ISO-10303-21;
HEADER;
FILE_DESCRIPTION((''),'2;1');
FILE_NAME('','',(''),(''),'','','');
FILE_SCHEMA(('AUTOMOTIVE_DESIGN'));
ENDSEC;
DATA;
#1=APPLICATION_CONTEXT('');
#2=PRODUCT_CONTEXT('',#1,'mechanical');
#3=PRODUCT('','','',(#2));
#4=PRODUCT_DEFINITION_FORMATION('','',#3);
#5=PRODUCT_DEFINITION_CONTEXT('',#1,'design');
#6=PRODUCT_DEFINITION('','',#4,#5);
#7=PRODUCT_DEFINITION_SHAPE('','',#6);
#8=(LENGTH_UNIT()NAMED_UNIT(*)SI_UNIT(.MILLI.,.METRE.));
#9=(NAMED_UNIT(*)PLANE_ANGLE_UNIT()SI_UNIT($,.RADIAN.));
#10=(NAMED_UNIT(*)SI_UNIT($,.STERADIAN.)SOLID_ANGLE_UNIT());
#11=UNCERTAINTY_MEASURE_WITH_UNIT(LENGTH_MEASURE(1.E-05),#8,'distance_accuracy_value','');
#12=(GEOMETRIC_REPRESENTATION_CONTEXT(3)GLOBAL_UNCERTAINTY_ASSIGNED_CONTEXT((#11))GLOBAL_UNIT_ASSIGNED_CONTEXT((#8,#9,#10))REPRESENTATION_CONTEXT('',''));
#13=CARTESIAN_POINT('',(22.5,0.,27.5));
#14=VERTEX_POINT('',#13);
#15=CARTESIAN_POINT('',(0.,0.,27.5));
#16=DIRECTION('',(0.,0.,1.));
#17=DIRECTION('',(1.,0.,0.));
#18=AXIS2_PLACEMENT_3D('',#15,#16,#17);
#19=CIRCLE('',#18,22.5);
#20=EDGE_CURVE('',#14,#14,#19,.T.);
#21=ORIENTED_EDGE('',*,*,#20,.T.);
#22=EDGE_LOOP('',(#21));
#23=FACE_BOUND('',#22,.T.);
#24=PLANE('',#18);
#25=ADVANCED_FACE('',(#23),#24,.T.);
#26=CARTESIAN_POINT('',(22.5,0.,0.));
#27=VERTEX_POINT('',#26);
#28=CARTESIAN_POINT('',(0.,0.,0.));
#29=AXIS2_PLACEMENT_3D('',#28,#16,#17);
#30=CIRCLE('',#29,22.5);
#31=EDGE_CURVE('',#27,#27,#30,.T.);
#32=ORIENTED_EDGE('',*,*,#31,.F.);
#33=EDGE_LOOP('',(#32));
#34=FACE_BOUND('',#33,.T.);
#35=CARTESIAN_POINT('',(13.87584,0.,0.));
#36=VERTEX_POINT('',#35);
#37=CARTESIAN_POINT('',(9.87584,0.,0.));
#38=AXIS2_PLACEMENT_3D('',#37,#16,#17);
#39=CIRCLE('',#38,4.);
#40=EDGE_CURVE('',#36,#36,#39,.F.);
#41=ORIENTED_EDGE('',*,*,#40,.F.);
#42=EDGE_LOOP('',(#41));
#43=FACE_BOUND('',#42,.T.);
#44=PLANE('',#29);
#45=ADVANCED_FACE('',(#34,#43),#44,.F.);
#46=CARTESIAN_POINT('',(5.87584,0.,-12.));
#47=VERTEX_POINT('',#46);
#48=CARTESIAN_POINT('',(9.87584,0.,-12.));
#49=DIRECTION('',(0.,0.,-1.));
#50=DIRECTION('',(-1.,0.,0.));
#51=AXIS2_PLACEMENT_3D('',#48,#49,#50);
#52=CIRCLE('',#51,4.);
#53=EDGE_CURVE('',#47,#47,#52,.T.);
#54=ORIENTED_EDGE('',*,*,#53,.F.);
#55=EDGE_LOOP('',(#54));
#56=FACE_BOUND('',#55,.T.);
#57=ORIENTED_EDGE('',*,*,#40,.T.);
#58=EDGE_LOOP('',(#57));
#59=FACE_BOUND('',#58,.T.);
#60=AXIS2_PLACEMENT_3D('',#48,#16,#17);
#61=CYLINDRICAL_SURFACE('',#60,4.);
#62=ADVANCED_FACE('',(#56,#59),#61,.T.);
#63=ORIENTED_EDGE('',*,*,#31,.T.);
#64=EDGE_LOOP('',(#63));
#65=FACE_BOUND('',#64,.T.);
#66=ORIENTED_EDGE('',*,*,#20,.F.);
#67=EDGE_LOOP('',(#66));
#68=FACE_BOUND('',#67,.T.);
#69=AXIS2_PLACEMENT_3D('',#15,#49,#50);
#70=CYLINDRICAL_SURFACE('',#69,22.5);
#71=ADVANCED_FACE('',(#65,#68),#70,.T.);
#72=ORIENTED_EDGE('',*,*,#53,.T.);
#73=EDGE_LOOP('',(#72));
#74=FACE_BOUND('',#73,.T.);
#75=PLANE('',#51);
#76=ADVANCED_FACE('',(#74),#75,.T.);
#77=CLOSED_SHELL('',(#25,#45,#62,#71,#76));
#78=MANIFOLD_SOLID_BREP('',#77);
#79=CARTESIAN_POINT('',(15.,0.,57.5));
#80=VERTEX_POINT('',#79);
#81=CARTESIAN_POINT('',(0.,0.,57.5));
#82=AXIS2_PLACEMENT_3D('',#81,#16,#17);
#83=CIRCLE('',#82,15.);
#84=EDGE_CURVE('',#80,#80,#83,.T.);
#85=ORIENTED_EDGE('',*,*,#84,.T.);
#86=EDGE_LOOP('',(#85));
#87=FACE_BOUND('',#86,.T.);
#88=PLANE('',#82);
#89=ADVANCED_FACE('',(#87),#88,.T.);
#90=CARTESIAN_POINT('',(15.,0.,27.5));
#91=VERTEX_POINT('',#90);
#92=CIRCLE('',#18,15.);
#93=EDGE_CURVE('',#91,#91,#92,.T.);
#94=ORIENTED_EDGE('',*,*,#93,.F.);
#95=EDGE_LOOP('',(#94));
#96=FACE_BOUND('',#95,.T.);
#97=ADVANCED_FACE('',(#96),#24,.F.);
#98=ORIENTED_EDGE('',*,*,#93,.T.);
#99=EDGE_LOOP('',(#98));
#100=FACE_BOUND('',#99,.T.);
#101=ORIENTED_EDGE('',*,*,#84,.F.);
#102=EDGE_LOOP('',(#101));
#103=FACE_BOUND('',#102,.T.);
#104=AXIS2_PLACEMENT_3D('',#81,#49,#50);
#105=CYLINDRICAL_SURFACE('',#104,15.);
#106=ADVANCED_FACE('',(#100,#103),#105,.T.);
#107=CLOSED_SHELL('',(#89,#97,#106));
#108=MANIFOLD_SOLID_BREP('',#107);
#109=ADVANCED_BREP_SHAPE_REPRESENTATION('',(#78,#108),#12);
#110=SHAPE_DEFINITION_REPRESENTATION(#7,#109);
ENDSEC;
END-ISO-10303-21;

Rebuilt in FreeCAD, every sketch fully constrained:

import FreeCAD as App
import Part
import Sketcher
from FreeCAD import Vector
Q = App.Units.Quantity

doc = App.newDocument("Part")
params = doc.addObject("Spreadsheet::Sheet", "Params")
for row, (alias, value) in enumerate([
    ("sketch1_diameter", "45 mm"),
    ("pad1_length", "27.5 mm"),
    ("sketch2_diameter", "8 mm"),
    ("pad2_length", "12 mm"),
    ("sketch3_diameter", "30 mm"),
    ("pad3_length", "30 mm"),
], start=1):
    params.set(f"A{row}", alias)
    params.set(f"B{row}", "=" + value)
    params.setAlias(f"B{row}", alias)

body = doc.addObject("PartDesign::Body", "Body")

sketch1 = body.newObject("Sketcher::SketchObject", "Sketch")
sketch1.AttachmentSupport = (doc.getObject("XY_Plane"), [""])
sketch1.MapMode = "FlatFace"
sketch1.addGeometry(Part.Circle(Vector(0, 0, 0), Vector(0, 0, 1), 22.5), False)
sketch1.addConstraint([
    Sketcher.Constraint("Coincident", 0, 3, -1, 1),
    Sketcher.Constraint("Diameter", 0, Q("45 mm")),
])
sketch1.setExpression("Constraints[1]", "Params.sketch1_diameter")
pad1 = body.newObject("PartDesign::Pad", "Pad")
pad1.Profile = sketch1
pad1.setExpression("Length", "Params.pad1_length")

sketch2 = body.newObject("Sketcher::SketchObject", "Sketch001")
sketch2.AttachmentSupport = (doc.getObject("XY_Plane"), [""])
sketch2.MapMode = "FlatFace"
sketch2.addGeometry(Part.Circle(Vector(9.87584, 0, 0), Vector(0, 0, 1), 4), False)
sketch2.addConstraint([
    Sketcher.Constraint("PointOnObject", 0, 3, -1),
    Sketcher.Constraint("Diameter", 0, Q("8 mm")),
    Sketcher.Constraint("DistanceX", -1, 1, 0, 3, Q("9.87584 mm")),
])
sketch2.setExpression("Constraints[1]", "Params.sketch2_diameter")
pad2 = body.newObject("PartDesign::Pad", "Pad001")
pad2.Profile = sketch2
pad2.setExpression("Length", "Params.pad2_length")
pad2.Reversed = True
body2 = doc.addObject("PartDesign::Body", "Body001")

sketch3 = body2.newObject("Sketcher::SketchObject", "Sketch002")
sketch3.AttachmentSupport = (doc.getObject("XY_Plane001"), [""])
sketch3.MapMode = "FlatFace"
sketch3.AttachmentOffset = App.Placement(Vector(0, 0, 27.5), App.Rotation())
sketch3.addGeometry(Part.Circle(Vector(0, 0, 0), Vector(0, 0, 1), 15), False)
sketch3.addConstraint([
    Sketcher.Constraint("Coincident", 0, 3, -1, 1),
    Sketcher.Constraint("Diameter", 0, Q("30 mm")),
])
sketch3.setExpression("Constraints[1]", "Params.sketch3_diameter")
pad3 = body2.newObject("PartDesign::Pad", "Pad002")
pad3.Profile = sketch3
pad3.setExpression("Length", "Params.pad3_length")

doc.recompute()
